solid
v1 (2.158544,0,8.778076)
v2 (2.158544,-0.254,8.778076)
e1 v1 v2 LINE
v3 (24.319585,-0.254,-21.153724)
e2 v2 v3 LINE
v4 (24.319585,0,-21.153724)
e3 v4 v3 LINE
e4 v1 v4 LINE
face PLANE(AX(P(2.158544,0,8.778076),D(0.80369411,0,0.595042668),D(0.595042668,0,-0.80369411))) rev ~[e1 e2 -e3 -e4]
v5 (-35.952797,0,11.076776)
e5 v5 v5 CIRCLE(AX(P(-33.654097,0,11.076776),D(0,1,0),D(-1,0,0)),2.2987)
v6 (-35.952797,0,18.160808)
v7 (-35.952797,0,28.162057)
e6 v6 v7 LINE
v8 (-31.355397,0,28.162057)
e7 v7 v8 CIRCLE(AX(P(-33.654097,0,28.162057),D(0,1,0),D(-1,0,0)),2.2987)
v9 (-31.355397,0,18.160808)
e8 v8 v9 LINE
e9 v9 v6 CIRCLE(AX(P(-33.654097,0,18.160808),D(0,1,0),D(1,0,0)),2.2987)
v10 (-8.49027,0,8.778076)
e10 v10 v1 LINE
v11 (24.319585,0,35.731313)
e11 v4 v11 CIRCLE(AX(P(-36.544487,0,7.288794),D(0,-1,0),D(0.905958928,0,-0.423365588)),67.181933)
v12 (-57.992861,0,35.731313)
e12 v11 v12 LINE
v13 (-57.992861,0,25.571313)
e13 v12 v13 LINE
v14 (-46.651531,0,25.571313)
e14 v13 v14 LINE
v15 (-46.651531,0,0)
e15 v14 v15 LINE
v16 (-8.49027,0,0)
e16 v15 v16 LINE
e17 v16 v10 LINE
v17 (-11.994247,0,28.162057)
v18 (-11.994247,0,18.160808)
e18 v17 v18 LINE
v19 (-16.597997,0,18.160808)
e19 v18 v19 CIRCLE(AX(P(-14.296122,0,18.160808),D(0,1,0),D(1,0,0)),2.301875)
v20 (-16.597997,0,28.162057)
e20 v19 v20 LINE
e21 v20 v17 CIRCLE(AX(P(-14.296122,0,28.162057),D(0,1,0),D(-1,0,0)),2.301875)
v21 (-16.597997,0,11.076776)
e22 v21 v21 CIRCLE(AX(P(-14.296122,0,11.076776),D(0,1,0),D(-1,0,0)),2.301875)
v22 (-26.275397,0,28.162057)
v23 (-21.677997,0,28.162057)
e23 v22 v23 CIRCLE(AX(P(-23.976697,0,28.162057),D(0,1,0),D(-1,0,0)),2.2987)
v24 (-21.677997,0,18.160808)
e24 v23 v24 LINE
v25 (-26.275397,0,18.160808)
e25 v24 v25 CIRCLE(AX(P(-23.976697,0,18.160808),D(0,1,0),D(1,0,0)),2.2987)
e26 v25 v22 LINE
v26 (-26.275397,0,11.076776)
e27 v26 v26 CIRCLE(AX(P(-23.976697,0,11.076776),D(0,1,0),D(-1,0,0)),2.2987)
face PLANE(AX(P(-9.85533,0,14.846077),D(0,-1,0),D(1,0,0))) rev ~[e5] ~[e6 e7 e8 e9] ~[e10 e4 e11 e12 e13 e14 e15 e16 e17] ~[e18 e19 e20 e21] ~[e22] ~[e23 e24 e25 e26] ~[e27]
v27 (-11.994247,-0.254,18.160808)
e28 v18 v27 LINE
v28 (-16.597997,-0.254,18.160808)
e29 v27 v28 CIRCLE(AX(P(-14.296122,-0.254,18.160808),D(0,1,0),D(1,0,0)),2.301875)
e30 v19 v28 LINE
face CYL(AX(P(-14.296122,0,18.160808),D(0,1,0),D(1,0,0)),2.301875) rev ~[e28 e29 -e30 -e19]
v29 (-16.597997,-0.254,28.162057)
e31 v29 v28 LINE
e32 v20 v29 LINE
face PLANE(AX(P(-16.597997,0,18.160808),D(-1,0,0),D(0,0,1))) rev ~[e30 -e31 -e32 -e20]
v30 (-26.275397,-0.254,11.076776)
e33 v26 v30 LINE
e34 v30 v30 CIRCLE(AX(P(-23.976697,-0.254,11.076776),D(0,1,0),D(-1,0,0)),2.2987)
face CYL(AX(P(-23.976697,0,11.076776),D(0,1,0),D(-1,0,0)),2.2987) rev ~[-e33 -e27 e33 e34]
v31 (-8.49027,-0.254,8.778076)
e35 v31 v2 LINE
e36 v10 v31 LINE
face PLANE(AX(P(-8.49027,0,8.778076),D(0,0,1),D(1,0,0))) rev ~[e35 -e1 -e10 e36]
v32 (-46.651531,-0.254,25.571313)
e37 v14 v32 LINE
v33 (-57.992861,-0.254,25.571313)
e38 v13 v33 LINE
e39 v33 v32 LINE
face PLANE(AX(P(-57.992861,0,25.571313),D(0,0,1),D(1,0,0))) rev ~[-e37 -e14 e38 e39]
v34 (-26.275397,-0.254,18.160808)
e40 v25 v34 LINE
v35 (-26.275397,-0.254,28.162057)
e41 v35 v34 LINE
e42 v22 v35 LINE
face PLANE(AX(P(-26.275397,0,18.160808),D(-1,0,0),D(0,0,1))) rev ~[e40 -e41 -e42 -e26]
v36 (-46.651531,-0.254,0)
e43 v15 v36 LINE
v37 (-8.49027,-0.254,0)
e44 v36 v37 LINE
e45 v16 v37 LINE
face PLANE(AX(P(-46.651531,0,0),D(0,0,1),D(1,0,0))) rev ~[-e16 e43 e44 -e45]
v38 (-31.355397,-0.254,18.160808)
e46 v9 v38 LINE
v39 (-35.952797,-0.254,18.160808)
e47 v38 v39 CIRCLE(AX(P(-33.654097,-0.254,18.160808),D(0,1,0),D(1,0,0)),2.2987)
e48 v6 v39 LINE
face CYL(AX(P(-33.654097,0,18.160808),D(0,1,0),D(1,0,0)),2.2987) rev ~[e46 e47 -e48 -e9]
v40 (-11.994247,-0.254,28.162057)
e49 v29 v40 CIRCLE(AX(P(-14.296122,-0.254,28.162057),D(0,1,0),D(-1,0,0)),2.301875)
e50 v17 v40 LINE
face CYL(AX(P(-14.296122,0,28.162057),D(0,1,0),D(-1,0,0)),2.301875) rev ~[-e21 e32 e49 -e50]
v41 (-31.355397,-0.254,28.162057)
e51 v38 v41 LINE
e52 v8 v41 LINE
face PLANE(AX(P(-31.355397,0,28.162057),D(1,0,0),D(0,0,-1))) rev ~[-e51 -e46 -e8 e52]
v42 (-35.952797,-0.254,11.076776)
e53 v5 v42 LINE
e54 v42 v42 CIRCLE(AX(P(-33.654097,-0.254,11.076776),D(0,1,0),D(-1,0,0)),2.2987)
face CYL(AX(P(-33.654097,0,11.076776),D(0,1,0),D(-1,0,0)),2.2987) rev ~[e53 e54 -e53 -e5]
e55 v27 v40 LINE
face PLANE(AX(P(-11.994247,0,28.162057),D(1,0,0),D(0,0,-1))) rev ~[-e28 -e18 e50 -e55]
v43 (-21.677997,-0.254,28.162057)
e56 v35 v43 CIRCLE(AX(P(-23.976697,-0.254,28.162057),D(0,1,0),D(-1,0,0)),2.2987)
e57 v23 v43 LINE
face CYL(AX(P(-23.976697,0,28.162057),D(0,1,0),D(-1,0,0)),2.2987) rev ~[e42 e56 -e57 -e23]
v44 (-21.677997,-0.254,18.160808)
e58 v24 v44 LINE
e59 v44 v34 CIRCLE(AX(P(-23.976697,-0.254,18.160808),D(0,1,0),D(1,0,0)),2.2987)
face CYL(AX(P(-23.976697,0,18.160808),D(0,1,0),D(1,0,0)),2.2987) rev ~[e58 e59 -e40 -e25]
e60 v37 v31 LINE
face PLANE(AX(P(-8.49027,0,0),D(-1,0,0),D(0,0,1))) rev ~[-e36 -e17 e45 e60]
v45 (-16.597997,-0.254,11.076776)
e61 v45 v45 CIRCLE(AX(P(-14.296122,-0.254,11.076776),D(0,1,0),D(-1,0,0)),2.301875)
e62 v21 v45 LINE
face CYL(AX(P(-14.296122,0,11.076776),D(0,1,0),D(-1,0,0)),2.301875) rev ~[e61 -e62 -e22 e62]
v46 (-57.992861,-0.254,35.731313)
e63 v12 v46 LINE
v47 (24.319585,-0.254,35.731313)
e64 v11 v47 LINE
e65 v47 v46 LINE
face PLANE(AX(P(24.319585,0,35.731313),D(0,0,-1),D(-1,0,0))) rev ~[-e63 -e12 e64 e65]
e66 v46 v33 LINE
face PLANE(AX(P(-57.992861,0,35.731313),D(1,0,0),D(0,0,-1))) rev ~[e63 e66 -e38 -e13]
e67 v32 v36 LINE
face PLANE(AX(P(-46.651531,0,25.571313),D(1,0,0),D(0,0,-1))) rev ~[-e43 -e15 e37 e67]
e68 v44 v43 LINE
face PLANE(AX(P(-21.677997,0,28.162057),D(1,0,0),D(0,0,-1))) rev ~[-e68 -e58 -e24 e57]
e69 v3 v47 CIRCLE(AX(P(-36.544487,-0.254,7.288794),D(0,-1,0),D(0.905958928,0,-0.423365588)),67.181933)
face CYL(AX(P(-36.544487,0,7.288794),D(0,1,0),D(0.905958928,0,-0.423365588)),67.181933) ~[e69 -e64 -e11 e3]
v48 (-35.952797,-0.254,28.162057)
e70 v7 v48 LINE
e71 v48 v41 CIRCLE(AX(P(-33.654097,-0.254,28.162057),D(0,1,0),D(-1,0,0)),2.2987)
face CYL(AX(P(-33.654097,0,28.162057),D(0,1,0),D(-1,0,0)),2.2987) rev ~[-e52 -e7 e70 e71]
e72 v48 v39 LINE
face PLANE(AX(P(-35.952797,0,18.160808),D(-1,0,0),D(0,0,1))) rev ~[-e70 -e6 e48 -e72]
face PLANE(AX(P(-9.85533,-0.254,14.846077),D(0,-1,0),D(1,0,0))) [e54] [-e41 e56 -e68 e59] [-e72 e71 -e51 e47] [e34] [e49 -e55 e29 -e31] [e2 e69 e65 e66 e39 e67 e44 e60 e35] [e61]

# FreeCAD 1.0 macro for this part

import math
import FreeCAD as App
import Part
import Sketcher
Q = App.Units.Quantity

doc = App.newDocument("Part")
body = doc.addObject("PartDesign::Body", "Body")

sketch1 = body.newObject("Sketcher::SketchObject", "Sketch")
sketch1.AttachmentSupport = (doc.getObject("XZ_Plane"), [""])
sketch1.MapMode = "FlatFace"
sketch1.addGeometry([
    Part.LineSegment(App.Vector(24, 36, 0), App.Vector(-58, 36, 0)),
    Part.LineSegment(App.Vector(-58, 36, 0), App.Vector(-58, 26, 0)),
    Part.LineSegment(App.Vector(-58, 26, 0), App.Vector(-47, 26, 0)),
    Part.LineSegment(App.Vector(-47, 26, 0), App.Vector(-47, 0, 0)),
    Part.LineSegment(App.Vector(-47, 0, 0), App.Vector(-8, 0, 0)),
    Part.LineSegment(App.Vector(-8, 0, 0), App.Vector(-8, 9, 0)),
    Part.LineSegment(App.Vector(-8, 9, 0), App.Vector(2, 9, 0)),
    Part.LineSegment(App.Vector(2, 9, 0), App.Vector(24, -21, 0)),
    Part.ArcOfCircle(Part.Circle(App.Vector(-37, 7, 0), App.Vector(0, 0, 1), 67), math.radians(-25), math.radians(25)),
], False)
sketch1.addConstraint([
    Sketcher.Constraint("Coincident", 0, 2, 1, 1),
    Sketcher.Constraint("Coincident", 1, 2, 2, 1),
    Sketcher.Constraint("Coincident", 2, 2, 3, 1),
    Sketcher.Constraint("Coincident", 3, 2, 4, 1),
    Sketcher.Constraint("Coincident", 4, 2, 5, 1),
    Sketcher.Constraint("Coincident", 5, 2, 6, 1),
    Sketcher.Constraint("Coincident", 6, 2, 7, 1),
    Sketcher.Constraint("Coincident", 7, 2, 8, 1),
    Sketcher.Constraint("Coincident", 8, 2, 0, 1),
    Sketcher.Constraint("Horizontal", 0),
    Sketcher.Constraint("Vertical", 1),
    Sketcher.Constraint("Horizontal", 2),
    Sketcher.Constraint("Vertical", 3),
    Sketcher.Constraint("Horizontal", 4),
    Sketcher.Constraint("Vertical", 5),
    Sketcher.Constraint("Horizontal", 6),
    Sketcher.Constraint("PointOnObject", 3, 2, -1),
    Sketcher.Constraint("Vertical", 7, 2, 8, 2),
    Sketcher.Constraint("DistanceY", 1, 2, 1, 1, Q("0.4 in")),
    Sketcher.Constraint("Radius", 8, Q("67.181933 mm")),
    Sketcher.Constraint("DistanceX", 2, 1, 2, 2, Q("11.34133 mm")),
    Sketcher.Constraint("DistanceX", 4, 1, 4, 2, Q("38.161261 mm")),
    Sketcher.Constraint("DistanceY", 7, 2, 6, 2, Q("29.9318 mm")),
    Sketcher.Constraint("DistanceX", 0, 2, 0, 1, Q("82.312446 mm")),
    Sketcher.Constraint("DistanceX", 6, 1, 6, 2, Q("10.648814 mm")),
    Sketcher.Constraint("DistanceY", 3, 2, 3, 1, Q("25.571313 mm")),
    Sketcher.Constraint("DistanceY", 5, 1, 5, 2, Q("8.778076 mm")),
    Sketcher.Constraint("DistanceX", 0, 2, -1, 1, Q("57.992861 mm")),
])
pad1 = body.newObject("PartDesign::Pad", "Pad")
pad1.Profile = sketch1
pad1.Length = Q("0.01 in")

sketch2 = body.newObject("Sketcher::SketchObject", "Sketch001")
sketch2.AttachmentSupport = (doc.getObject("XZ_Plane"), [""])
sketch2.MapMode = "FlatFace"
sketch2.addGeometry([
    Part.ArcOfCircle(Part.Circle(App.Vector(-14.3, 28.2, 0), App.Vector(0, 0, 1), 2.3), math.radians(0), math.radians(180)),
    Part.LineSegment(App.Vector(-12, 28.2, 0), App.Vector(-12, 18.2, 0)),
    Part.ArcOfCircle(Part.Circle(App.Vector(-14.3, 18.2, 0), App.Vector(0, 0, 1), 2.3), math.radians(180), math.radians(360)),
    Part.LineSegment(App.Vector(-16.6, 18.2, 0), App.Vector(-16.6, 28.2, 0)),
    Part.ArcOfCircle(Part.Circle(App.Vector(-24, 28.2, 0), App.Vector(0, 0, 1), 2.3), math.radians(0), math.radians(180)),
    Part.LineSegment(App.Vector(-21.7, 28.2, 0), App.Vector(-21.7, 18.2, 0)),
    Part.ArcOfCircle(Part.Circle(App.Vector(-24, 18.2, 0), App.Vector(0, 0, 1), 2.3), math.radians(180), math.radians(360)),
    Part.LineSegment(App.Vector(-26.3, 18.2, 0), App.Vector(-26.3, 28.2, 0)),
    Part.ArcOfCircle(Part.Circle(App.Vector(-33.7, 28.2, 0), App.Vector(0, 0, 1), 2.3), math.radians(0), math.radians(180)),
    Part.LineSegment(App.Vector(-31.4, 28.2, 0), App.Vector(-31.4, 18.2, 0)),
    Part.ArcOfCircle(Part.Circle(App.Vector(-33.7, 18.2, 0), App.Vector(0, 0, 1), 2.3), math.radians(180), math.radians(360)),
    Part.LineSegment(App.Vector(-36, 18.2, 0), App.Vector(-36, 28.2, 0)),
    Part.Circle(App.Vector(-24, 11.1, 0), App.Vector(0, 0, 1), 2.3),
    Part.Circle(App.Vector(-14.3, 11.1, 0), App.Vector(0, 0, 1), 2.3),
    Part.Circle(App.Vector(-33.7, 11.1, 0), App.Vector(0, 0, 1), 2.3),
], False)
sketch2.addConstraint([
    Sketcher.Constraint("Tangent", 0, 1, 1, 1),
    Sketcher.Constraint("Tangent", 1, 2, 2, 2),
    Sketcher.Constraint("Tangent", 2, 1, 3, 1),
    Sketcher.Constraint("Tangent", 3, 2, 0, 2),
    Sketcher.Constraint("Tangent", 4, 1, 5, 1),
    Sketcher.Constraint("Tangent", 5, 2, 6, 2),
    Sketcher.Constraint("Tangent", 6, 1, 7, 1),
    Sketcher.Constraint("Tangent", 7, 2, 4, 2),
    Sketcher.Constraint("Tangent", 8, 1, 9, 1),
    Sketcher.Constraint("Tangent", 9, 2, 10, 2),
    Sketcher.Constraint("Tangent", 10, 1, 11, 1),
    Sketcher.Constraint("Tangent", 11, 2, 8, 2),
    Sketcher.Constraint("Vertical", 1),
    Sketcher.Constraint("Vertical", 3),
    Sketcher.Constraint("Vertical", 5),
    Sketcher.Constraint("Vertical", 7),
    Sketcher.Constraint("Vertical", 9),
    Sketcher.Constraint("Vertical", 11),
    Sketcher.Constraint("Equal", 6, 8),
    Sketcher.Constraint("Equal", 10, 12),
    Sketcher.Constraint("Equal", 2, 13),
    Sketcher.Constraint("Equal", 12, 14),
    Sketcher.Constraint("Horizontal", 0, 3, 4, 3),
    Sketcher.Constraint("Horizontal", 2, 3, 6, 3),
    Sketcher.Constraint("Horizontal", 4, 3, 8, 3),
    Sketcher.Constraint("Horizontal", 6, 3, 10, 3),
    Sketcher.Constraint("Horizontal", 12, 3, 13, 3),
    Sketcher.Constraint("Horizontal", 13, 3, 14, 3),
    Sketcher.Constraint("Vertical", 6, 3, 12, 3),
    Sketcher.Constraint("Vertical", 2, 3, 13, 3),
    Sketcher.Constraint("Vertical", 10, 3, 14, 3),
    Sketcher.Constraint("Diameter", 12, Q("0.181 in")),
    Sketcher.Constraint("DistanceX", 4, 1, 3, 2, Q("0.2 in")),
    Sketcher.Constraint("DistanceX", 8, 1, 7, 2, Q("0.2 in")),
    Sketcher.Constraint("Diameter", 13, Q("4.60375 mm")),
    Sketcher.Constraint("DistanceY", 1, 2, 1, 1, Q("10.001249 mm")),
    Sketcher.Constraint("DistanceY", 12, 3, 6, 3, Q("7.084032 mm")),
    Sketcher.Constraint("DistanceX", 0, 3, -1, 1, Q("14.296122 mm")),
    Sketcher.Constraint("DistanceY", -1, 1, 0, 3, Q("28.162057 mm")),
])
pocket1 = body.newObject("PartDesign::Pocket", "Pocket")
pocket1.Profile = sketch2
pocket1.Length = Q("1 in")
pocket1.Reversed = True

doc.recompute()
